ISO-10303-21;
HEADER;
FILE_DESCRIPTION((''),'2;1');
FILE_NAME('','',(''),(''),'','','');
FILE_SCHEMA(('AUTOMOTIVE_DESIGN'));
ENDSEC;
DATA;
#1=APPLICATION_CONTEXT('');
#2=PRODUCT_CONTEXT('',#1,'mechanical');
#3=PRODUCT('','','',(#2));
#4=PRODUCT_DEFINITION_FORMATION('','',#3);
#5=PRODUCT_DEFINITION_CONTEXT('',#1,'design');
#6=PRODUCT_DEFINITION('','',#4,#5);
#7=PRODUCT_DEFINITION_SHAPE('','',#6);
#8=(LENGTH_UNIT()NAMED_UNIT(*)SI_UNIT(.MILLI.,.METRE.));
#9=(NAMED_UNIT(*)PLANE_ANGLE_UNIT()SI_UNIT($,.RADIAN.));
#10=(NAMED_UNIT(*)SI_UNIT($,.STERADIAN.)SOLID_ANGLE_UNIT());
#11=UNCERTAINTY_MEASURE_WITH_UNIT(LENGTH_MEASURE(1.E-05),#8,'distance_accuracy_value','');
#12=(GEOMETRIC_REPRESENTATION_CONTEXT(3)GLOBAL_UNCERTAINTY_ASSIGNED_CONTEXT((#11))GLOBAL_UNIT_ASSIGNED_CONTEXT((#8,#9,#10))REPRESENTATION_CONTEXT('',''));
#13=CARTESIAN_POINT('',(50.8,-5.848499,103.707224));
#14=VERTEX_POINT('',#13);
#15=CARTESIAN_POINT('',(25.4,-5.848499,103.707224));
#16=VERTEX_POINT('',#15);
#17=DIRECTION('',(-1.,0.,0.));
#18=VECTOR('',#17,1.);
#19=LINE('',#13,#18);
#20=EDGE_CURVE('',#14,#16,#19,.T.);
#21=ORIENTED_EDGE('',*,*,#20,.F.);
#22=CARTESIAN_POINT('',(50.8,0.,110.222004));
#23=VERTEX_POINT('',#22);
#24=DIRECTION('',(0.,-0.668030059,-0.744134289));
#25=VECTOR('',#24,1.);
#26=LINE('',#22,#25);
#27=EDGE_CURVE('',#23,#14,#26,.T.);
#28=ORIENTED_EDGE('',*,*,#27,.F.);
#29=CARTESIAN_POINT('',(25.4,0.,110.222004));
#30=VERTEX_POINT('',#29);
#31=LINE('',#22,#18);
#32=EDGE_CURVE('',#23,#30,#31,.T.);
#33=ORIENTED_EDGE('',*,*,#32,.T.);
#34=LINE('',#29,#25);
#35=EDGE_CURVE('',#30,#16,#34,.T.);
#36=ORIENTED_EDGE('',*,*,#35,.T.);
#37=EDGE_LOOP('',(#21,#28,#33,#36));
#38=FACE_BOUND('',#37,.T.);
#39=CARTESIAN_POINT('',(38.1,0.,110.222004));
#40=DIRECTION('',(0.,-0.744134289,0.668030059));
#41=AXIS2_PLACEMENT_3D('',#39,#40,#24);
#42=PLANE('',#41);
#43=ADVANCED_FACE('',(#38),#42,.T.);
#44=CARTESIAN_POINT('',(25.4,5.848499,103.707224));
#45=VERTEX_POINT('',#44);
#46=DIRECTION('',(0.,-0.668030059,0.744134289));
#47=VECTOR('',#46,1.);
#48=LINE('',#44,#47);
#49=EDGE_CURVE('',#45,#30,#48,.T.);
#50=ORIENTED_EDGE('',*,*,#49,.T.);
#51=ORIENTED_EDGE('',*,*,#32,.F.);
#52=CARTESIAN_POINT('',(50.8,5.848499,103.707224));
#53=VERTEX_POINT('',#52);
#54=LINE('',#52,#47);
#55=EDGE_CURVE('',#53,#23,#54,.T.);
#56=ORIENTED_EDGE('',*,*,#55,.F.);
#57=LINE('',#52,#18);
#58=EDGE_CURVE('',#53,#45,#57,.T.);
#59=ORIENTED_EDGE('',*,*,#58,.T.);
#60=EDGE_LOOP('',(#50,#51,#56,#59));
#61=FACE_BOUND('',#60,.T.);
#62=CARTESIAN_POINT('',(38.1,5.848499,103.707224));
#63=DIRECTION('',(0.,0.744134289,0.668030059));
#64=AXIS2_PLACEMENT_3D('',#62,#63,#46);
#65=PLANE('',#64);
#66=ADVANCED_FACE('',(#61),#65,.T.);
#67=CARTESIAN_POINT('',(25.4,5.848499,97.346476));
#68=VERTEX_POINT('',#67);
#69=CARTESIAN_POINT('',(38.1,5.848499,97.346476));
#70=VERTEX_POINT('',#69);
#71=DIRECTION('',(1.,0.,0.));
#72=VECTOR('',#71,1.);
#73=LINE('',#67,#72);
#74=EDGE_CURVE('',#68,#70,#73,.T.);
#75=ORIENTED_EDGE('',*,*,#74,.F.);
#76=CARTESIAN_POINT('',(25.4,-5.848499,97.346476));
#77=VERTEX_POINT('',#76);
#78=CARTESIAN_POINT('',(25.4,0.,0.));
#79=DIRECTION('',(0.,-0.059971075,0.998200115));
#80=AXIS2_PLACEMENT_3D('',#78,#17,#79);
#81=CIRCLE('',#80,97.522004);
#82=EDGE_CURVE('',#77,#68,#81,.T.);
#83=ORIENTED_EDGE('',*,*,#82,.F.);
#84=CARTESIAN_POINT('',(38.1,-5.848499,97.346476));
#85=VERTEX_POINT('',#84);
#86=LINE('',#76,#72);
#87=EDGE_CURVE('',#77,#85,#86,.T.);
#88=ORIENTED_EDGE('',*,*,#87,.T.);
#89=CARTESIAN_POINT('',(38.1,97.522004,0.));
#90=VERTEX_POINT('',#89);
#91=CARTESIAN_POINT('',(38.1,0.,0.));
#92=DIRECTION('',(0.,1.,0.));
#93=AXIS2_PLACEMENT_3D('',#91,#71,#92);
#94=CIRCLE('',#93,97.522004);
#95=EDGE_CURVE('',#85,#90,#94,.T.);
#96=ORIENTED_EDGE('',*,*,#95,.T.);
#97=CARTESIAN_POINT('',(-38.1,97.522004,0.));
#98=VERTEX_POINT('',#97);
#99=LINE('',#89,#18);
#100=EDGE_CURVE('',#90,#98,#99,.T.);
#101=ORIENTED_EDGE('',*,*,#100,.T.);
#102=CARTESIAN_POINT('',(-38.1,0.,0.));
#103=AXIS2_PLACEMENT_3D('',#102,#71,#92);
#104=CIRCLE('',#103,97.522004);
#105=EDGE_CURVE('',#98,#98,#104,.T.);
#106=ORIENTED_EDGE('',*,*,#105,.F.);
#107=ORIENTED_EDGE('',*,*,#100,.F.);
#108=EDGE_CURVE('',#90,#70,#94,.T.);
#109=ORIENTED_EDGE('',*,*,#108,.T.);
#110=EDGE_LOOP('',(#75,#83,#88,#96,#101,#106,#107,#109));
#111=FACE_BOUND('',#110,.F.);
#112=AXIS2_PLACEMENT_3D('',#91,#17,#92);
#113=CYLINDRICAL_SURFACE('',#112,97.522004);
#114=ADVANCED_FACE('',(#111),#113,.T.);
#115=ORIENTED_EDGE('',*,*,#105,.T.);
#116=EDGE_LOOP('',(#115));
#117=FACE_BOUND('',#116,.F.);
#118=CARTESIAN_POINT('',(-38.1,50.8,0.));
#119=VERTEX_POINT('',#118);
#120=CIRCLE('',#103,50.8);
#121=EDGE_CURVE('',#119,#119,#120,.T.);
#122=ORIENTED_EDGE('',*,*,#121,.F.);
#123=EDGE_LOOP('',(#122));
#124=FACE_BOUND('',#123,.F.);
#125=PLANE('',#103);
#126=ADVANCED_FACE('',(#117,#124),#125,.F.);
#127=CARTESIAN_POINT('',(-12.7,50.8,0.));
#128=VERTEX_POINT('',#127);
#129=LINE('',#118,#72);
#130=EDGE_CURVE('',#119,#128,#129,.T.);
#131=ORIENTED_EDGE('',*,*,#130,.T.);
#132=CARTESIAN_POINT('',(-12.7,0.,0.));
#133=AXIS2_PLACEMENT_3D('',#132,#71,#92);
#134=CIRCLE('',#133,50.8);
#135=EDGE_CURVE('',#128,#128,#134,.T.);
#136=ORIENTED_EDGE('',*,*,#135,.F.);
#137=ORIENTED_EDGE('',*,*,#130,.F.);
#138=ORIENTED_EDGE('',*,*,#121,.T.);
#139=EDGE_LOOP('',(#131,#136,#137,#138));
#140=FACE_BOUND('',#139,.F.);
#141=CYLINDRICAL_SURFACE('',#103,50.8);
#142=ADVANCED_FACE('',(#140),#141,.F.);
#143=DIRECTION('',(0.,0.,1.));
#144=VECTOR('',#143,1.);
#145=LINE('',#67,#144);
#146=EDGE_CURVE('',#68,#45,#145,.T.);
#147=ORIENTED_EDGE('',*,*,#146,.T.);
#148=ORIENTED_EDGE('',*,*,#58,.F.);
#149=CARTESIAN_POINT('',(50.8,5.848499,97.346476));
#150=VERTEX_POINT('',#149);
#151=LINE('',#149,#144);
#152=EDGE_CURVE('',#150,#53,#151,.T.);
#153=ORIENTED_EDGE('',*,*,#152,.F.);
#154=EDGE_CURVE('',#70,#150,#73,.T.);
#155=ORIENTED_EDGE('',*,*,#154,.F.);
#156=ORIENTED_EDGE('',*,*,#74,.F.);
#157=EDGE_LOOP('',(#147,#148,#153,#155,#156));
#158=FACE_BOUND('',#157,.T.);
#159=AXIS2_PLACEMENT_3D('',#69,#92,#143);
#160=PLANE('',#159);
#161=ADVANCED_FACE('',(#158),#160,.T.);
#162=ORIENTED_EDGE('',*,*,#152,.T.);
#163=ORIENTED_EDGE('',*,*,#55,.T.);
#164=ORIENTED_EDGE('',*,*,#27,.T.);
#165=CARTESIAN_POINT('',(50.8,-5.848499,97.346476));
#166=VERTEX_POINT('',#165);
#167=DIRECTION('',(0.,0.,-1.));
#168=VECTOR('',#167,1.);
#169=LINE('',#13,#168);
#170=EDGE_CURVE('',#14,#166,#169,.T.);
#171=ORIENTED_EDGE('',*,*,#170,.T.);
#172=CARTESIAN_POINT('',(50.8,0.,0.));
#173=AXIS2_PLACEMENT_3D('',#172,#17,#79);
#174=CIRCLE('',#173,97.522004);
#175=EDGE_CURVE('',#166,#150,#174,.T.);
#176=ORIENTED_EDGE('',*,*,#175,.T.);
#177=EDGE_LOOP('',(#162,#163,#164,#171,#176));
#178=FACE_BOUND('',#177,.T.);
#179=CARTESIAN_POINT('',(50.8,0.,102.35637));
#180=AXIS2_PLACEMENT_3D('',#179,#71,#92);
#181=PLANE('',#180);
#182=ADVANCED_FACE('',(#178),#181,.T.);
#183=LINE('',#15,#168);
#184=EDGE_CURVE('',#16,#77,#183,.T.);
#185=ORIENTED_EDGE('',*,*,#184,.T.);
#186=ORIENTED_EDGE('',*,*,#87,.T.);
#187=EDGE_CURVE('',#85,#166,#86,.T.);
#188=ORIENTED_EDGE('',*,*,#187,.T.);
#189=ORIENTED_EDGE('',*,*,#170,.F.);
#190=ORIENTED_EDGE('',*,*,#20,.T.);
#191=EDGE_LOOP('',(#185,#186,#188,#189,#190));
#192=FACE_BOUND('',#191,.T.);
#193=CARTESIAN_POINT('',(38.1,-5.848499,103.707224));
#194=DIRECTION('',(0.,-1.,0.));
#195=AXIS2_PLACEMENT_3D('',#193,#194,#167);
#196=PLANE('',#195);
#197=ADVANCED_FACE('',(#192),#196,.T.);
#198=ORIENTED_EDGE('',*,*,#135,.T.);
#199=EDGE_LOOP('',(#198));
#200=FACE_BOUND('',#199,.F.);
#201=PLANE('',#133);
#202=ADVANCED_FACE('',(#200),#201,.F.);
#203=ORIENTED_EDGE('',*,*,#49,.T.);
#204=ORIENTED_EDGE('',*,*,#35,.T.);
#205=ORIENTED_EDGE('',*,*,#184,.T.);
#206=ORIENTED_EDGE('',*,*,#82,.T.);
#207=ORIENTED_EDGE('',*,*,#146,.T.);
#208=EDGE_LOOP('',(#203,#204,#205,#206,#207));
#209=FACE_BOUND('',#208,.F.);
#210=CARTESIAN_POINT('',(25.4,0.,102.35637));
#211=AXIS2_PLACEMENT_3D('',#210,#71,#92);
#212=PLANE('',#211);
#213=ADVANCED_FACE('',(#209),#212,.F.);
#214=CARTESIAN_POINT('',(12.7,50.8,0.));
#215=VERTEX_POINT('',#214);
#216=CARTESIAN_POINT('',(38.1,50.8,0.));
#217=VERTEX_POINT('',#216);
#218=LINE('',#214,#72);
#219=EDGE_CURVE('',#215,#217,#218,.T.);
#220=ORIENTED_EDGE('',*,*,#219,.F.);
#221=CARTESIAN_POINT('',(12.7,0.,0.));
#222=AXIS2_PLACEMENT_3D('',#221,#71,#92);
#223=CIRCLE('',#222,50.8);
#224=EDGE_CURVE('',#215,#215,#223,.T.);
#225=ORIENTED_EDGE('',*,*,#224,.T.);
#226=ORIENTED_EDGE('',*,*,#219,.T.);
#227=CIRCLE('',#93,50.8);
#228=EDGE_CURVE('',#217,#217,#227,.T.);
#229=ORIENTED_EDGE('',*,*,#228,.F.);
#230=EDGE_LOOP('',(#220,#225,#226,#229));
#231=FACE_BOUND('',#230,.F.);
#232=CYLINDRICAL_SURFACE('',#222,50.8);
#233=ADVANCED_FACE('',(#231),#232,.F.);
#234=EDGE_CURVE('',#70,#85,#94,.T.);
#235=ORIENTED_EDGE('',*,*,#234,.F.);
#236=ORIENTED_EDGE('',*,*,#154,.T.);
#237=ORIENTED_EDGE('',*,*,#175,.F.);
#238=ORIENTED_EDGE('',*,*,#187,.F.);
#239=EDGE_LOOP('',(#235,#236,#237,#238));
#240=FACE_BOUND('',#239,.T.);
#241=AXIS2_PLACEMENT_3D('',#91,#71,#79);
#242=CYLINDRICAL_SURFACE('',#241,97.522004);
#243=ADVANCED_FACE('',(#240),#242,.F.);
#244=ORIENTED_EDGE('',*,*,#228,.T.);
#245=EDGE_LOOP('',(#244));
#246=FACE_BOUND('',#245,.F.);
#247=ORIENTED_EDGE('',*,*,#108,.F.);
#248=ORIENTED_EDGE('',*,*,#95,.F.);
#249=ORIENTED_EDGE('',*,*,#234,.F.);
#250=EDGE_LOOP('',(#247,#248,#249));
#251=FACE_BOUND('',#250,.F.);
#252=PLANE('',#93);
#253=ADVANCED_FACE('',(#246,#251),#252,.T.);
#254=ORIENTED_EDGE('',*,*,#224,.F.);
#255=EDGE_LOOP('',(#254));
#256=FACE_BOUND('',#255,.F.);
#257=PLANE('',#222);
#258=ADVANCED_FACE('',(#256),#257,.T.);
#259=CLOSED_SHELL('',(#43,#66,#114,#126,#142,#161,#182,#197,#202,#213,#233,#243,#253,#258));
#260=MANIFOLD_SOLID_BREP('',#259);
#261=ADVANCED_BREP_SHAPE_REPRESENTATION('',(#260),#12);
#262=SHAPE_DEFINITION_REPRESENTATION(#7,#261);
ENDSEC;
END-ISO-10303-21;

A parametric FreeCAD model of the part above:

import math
import FreeCAD as App
import Part
import Sketcher

V = App.Vector
Q = App.Units.Quantity

doc = App.newDocument("Part")
body = doc.addObject("PartDesign::Body", "Body")

# Sketch on XY plane
sketch1 = body.newObject("Sketcher::SketchObject", "Sketch")
sketch1.AttachmentSupport = (doc.getObject("XY_Plane"), [""])
sketch1.MapMode = "FlatFace"
sketch1.addGeometry(Part.LineSegment(V(-38.1, 97.522004, 0), V(-38.1, 50.8, 0)), False)
sketch1.addGeometry(Part.LineSegment(V(-38.1, 50.8, 0), V(-12.7, 50.8, 0)), False)
sketch1.addGeometry(Part.LineSegment(V(-12.7, 50.8, 0), V(-12.7, 0, 0)), False)
sketch1.addGeometry(Part.LineSegment(V(-12.7, 0, 0), V(12.7, 0, 0)), False)
sketch1.addGeometry(Part.LineSegment(V(12.7, 0, 0), V(12.7, 50.8, 0)), False)
sketch1.addGeometry(Part.LineSegment(V(12.7, 50.8, 0), V(38.1, 50.8, 0)), False)
sketch1.addGeometry(Part.LineSegment(V(38.1, 50.8, 0), V(38.1, 97.522004, 0)), False)
sketch1.addGeometry(Part.LineSegment(V(38.1, 97.522004, 0), V(-38.1, 97.522004, 0)), False)
sketch1.addConstraint(Sketcher.Constraint("Coincident", 0, 2, 1, 1))
sketch1.addConstraint(Sketcher.Constraint("Coincident", 1, 2, 2, 1))
sketch1.addConstraint(Sketcher.Constraint("Coincident", 2, 2, 3, 1))
sketch1.addConstraint(Sketcher.Constraint("Coincident", 3, 2, 4, 1))
sketch1.addConstraint(Sketcher.Constraint("Coincident", 4, 2, 5, 1))
sketch1.addConstraint(Sketcher.Constraint("Coincident", 5, 2, 6, 1))
sketch1.addConstraint(Sketcher.Constraint("Coincident", 6, 2, 7, 1))
sketch1.addConstraint(Sketcher.Constraint("Coincident", 7, 2, 0, 1))
sketch1.addConstraint(Sketcher.Constraint("Vertical", 0))
sketch1.addConstraint(Sketcher.Constraint("Horizontal", 1))
sketch1.addConstraint(Sketcher.Constraint("Vertical", 2))
sketch1.addConstraint(Sketcher.Constraint("Horizontal", 3))
sketch1.addConstraint(Sketcher.Constraint("Vertical", 4))
sketch1.addConstraint(Sketcher.Constraint("Horizontal", 5))
sketch1.addConstraint(Sketcher.Constraint("Vertical", 6))
sketch1.addConstraint(Sketcher.Constraint("Horizontal", 7))
sketch1.addConstraint(Sketcher.Constraint("Symmetric", 2, 2, 3, 2, -1, 1))
sketch1.addConstraint(Sketcher.Constraint("Symmetric", 0, 2, 5, 2, -2))
sketch1.addConstraint(Sketcher.Constraint("Equal", 1, 3))
sketch1.addConstraint(Sketcher.Constraint("DistanceX", 1, 1, 1, 2, Q("1 in")))
sketch1.addConstraint(Sketcher.Constraint("DistanceY", 2, 2, 2, 1, Q("2 in")))
sketch1.addConstraint(Sketcher.Constraint("DistanceY", 0, 2, 0, 1, 46.722004))
revolution = body.newObject("PartDesign::Revolution", "Revolution")
revolution.Profile = sketch1
revolution.ReferenceAxis = (sketch1, ["H_Axis"])
revolution.Angle = 360

# Sketch on YZ plane
sketch2 = body.newObject("Sketcher::SketchObject", "Sketch001")
sketch2.AttachmentSupport = (doc.getObject("YZ_Plane"), [""])
sketch2.MapMode = "FlatFace"
sketch2.AttachmentOffset = App.Placement(V(0, 0, 1.5 * 25.4), App.Rotation())
sketch2.addGeometry(Part.LineSegment(V(-5.848499, 103.707224, 0), V(-5.848499, 97.346476, 0)), False)
sketch2.addGeometry(Part.ArcOfCircle(Part.Circle(V(0, 0, 0), V(0, 0, 1), 97.522004), math.radians(86.561847), math.radians(93.438153)), False)
sketch2.addGeometry(Part.LineSegment(V(5.848499, 97.346476, 0), V(5.848499, 103.707224, 0)), False)
sketch2.addGeometry(Part.LineSegment(V(5.848499, 103.707224, 0), V(0, 110.222004, 0)), False)
sketch2.addGeometry(Part.LineSegment(V(0, 110.222004, 0), V(-5.848499, 103.707224, 0)), False)
sketch2.addConstraint(Sketcher.Constraint("Coincident", 0, 2, 1, 2))
sketch2.addConstraint(Sketcher.Constraint("Coincident", 1, 1, 2, 1))
sketch2.addConstraint(Sketcher.Constraint("Coincident", 2, 2, 3, 1))
sketch2.addConstraint(Sketcher.Constraint("Coincident", 3, 2, 4, 1))
sketch2.addConstraint(Sketcher.Constraint("Coincident", 4, 2, 0, 1))
sketch2.addConstraint(Sketcher.Constraint("Vertical", 0))
sketch2.addConstraint(Sketcher.Constraint("Vertical", 2))
sketch2.addConstraint(Sketcher.Constraint("Coincident", 1, 3, -1, 1))
sketch2.addConstraint(Sketcher.Constraint("Symmetric", 2, 2, 4, 2, -2))
sketch2.addConstraint(Sketcher.Constraint("PointOnObject", 3, 2, -2))
sketch2.addConstraint(Sketcher.Constraint("Radius", 1, 97.522004))
sketch2.addConstraint(Sketcher.Constraint("DistanceY", 0, 2, 0, 1, 6.360748))
sketch2.addConstraint(Sketcher.Constraint("DistanceX", 0, 2, -1, 1, 5.848499))
sketch2.addConstraint(Sketcher.Constraint("DistanceY", 2, 2, 3, 2, 6.51478))
pad1 = body.newObject("PartDesign::Pad", "Pad")
pad1.Profile = sketch2
pad1.Length = Q("1 in")
pad1.Midplane = True

doc.recompute()
